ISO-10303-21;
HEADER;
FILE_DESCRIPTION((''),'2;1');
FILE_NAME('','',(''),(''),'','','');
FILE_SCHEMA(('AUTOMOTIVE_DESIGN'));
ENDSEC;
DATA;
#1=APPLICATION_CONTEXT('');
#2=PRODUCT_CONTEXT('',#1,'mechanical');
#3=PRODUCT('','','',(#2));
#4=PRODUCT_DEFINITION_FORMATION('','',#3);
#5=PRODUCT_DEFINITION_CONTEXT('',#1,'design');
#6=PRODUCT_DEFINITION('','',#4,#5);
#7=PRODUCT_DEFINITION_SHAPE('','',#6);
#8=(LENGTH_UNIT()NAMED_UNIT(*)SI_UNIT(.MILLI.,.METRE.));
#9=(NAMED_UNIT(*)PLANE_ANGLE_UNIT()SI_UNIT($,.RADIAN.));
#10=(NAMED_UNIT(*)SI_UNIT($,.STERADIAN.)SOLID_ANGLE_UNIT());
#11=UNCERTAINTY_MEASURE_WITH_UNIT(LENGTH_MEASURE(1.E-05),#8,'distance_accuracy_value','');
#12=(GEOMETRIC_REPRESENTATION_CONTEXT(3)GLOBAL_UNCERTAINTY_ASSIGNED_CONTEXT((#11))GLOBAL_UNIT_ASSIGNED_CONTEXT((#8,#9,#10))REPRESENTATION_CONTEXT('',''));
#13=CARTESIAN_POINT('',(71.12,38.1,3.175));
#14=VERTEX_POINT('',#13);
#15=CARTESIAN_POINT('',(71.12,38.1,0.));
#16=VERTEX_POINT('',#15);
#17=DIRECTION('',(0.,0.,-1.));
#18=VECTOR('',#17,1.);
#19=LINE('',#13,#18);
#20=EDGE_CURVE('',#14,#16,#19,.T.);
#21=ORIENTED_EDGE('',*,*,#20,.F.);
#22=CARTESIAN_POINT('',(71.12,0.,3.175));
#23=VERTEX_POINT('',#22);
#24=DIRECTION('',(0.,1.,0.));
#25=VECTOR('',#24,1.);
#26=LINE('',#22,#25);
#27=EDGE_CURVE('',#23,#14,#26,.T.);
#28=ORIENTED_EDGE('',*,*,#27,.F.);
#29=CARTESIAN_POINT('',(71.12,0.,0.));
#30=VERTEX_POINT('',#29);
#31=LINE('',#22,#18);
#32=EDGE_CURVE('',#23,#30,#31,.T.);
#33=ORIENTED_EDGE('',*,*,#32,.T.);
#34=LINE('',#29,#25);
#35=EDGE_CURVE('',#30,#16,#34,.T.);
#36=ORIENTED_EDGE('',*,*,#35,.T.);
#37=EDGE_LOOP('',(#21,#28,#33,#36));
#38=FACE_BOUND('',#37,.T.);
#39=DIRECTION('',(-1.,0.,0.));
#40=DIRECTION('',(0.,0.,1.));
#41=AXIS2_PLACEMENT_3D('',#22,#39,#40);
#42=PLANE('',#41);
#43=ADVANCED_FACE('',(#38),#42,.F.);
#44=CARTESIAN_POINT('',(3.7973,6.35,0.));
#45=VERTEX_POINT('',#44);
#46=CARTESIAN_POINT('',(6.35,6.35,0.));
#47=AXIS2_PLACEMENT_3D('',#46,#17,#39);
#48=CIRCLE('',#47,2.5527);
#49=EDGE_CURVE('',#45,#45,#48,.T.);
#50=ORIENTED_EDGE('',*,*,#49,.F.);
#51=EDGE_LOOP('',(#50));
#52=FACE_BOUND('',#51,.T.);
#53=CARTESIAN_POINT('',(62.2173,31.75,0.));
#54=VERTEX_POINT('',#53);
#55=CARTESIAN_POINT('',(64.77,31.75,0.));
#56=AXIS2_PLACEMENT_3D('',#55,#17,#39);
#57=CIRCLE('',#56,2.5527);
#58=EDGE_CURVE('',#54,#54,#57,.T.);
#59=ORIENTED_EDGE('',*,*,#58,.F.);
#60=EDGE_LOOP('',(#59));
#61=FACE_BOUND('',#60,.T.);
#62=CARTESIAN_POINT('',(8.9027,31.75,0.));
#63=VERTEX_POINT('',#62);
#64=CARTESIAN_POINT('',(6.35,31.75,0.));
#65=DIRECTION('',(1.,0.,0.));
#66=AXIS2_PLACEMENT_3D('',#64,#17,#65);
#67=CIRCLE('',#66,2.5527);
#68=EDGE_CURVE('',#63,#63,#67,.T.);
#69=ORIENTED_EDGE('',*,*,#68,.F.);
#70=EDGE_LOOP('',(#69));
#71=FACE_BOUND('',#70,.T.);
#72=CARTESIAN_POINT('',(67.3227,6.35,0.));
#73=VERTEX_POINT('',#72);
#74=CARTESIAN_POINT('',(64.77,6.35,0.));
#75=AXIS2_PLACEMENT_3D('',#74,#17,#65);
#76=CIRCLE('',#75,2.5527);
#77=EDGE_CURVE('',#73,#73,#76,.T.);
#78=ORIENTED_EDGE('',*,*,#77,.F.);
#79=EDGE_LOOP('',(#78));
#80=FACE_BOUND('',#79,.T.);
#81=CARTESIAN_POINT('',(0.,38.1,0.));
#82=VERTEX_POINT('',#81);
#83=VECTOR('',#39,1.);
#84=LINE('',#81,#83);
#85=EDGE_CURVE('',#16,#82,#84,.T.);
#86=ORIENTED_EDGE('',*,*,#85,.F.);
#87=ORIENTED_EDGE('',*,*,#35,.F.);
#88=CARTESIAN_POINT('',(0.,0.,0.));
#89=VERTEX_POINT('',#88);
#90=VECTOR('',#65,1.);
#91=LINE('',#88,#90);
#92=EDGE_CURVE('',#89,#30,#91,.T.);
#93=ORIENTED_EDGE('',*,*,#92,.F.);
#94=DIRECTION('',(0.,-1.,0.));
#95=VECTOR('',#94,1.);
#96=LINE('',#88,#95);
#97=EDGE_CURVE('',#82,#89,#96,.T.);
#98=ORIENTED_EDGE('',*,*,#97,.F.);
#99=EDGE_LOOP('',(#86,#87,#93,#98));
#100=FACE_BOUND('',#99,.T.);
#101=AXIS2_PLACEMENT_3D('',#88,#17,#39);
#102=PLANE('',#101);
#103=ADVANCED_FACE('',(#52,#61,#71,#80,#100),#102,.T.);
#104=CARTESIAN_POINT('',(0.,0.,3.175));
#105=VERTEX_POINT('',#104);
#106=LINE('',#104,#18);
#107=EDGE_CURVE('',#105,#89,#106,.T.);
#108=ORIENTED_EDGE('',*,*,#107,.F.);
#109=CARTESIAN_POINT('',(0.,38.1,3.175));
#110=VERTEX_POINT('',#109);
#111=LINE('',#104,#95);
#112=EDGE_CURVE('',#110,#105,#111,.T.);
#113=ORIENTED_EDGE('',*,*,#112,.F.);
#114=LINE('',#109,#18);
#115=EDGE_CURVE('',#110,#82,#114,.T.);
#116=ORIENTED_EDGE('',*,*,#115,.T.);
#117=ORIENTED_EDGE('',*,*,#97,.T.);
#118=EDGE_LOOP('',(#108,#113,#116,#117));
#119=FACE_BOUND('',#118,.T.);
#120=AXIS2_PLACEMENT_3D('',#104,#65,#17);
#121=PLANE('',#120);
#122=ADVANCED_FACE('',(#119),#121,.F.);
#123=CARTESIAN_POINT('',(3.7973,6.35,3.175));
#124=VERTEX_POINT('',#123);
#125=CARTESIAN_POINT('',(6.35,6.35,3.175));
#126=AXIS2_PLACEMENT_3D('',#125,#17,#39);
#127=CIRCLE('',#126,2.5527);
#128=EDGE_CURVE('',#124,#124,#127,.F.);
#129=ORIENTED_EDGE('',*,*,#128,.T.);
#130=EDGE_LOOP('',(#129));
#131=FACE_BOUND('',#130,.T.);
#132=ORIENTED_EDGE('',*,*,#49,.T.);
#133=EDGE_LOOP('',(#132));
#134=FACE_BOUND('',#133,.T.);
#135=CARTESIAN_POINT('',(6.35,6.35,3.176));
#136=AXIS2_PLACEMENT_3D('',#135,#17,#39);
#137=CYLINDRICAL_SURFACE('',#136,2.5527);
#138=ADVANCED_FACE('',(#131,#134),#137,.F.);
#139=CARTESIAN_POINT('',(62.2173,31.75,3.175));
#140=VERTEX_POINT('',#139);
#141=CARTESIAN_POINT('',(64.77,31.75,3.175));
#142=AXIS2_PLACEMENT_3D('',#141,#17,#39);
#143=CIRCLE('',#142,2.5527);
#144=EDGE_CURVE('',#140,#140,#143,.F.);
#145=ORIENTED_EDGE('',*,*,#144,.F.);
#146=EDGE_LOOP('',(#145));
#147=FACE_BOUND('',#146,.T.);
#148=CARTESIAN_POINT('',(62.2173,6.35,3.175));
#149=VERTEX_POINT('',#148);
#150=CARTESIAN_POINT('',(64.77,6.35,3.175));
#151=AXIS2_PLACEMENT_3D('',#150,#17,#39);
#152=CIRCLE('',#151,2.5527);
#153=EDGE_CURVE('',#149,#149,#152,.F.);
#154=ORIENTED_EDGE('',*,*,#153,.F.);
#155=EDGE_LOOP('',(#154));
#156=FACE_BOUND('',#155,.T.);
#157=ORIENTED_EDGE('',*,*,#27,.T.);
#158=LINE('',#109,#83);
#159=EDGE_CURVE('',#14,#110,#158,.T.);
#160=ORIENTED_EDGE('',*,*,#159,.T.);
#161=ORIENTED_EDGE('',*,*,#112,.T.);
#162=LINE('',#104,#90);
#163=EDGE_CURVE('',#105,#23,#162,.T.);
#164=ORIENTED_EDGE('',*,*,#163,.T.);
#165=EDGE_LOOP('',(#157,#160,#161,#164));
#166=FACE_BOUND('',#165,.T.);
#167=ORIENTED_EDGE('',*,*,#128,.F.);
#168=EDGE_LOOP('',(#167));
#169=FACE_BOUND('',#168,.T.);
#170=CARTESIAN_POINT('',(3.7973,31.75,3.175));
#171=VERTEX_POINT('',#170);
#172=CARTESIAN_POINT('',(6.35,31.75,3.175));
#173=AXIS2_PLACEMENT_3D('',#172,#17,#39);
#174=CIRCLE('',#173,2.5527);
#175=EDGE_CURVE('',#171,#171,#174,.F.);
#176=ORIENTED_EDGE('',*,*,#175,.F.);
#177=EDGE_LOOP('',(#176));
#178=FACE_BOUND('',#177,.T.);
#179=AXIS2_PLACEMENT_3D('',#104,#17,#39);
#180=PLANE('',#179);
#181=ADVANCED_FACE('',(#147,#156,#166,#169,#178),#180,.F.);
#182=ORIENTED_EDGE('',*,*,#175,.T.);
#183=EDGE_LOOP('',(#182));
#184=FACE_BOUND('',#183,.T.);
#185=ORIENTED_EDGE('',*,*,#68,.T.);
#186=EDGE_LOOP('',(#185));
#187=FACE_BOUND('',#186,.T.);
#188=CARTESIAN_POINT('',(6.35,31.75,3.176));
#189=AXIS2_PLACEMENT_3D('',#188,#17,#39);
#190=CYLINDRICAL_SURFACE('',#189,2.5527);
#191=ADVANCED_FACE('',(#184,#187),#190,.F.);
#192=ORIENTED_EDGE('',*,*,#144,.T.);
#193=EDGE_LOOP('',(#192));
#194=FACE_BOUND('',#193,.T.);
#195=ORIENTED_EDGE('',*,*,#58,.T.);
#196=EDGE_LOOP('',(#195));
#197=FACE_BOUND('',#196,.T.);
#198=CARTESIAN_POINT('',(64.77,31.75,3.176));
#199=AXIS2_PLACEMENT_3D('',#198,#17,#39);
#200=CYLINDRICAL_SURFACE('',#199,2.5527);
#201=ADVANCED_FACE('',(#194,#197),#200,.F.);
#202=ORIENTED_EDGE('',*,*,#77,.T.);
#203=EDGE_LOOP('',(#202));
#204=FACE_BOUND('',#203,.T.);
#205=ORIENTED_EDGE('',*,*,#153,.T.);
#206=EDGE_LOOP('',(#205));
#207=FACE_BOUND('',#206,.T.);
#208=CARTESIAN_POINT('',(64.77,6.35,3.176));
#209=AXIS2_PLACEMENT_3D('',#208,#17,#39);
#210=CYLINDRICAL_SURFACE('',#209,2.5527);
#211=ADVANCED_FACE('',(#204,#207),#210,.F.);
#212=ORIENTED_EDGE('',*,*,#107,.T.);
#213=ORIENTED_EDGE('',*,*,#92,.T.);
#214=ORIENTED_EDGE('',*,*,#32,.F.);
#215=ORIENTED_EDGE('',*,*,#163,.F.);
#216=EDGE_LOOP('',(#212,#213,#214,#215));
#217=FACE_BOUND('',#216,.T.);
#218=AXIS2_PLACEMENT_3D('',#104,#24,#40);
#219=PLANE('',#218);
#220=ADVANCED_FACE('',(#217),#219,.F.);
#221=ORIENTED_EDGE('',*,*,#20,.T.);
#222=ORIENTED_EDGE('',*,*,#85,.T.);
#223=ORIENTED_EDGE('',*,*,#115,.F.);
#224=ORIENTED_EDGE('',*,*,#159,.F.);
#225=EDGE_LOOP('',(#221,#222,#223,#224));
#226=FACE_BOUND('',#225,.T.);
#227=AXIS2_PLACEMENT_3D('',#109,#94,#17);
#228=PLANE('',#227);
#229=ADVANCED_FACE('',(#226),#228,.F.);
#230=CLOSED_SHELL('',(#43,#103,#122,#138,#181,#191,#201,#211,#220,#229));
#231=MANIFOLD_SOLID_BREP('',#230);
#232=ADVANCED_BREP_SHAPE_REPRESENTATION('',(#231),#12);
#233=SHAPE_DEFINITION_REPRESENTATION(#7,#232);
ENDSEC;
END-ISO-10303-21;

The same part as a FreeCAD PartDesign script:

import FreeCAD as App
import Part
import Sketcher
from FreeCAD import Vector
Q = App.Units.Quantity


def add_polygon(sketch, points):
    """Adds a closed chain of lines whose ends are joined by coincident constraints."""
    first, n = sketch.GeometryCount, len(points)
    for a, b in zip(points, points[1:] + points[:1]):
        sketch.addGeometry(Part.LineSegment(App.Vector(*a, 0), App.Vector(*b, 0)), False)
    for i in range(n):
        sketch.addConstraint(Sketcher.Constraint("Coincident", first + i, 2, first + (i + 1) % n, 1))

doc = App.newDocument("Part")
body = doc.addObject("PartDesign::Body", "Body")

# Sketch on XY plane
sketch1 = body.newObject("Sketcher::SketchObject", "Sketch")
sketch1.AttachmentSupport = (doc.getObject("XY_Plane"), [""])
sketch1.MapMode = "FlatFace"
add_polygon(sketch1, [(0, 38), (0, 0), (71, 0), (71, 38)])  # lines 0-3
sketch1.addConstraint([
    Sketcher.Constraint("Vertical", 0),
    Sketcher.Constraint("Horizontal", 1),
    Sketcher.Constraint("Vertical", 2),
    Sketcher.Constraint("Horizontal", 3),
    Sketcher.Constraint("Coincident", 0, 2, -1, 1),
    Sketcher.Constraint("DistanceX", 1, 1, 1, 2, Q("2.8 in")),
    Sketcher.Constraint("DistanceY", 0, 2, 0, 1, Q("1.5 in")),
])
pad1 = body.newObject("PartDesign::Pad", "Pad")
pad1.Profile = sketch1
pad1.Length = Q("0.125 in")

# Sketch on XY plane
sketch2 = body.newObject("Sketcher::SketchObject", "Sketch001")
sketch2.AttachmentSupport = (doc.getObject("XY_Plane"), [""])
sketch2.MapMode = "FlatFace"
sketch2.addGeometry(Part.Circle(Vector(6.3, 6.3, 0), Vector(0, 0, 1), 2.6), False)
sketch2.addConstraint([
    Sketcher.Constraint("Diameter", 0, Q("0.201 in")),
    Sketcher.Constraint("DistanceX", -1, 1, 0, 3, Q("0.25 in")),
    Sketcher.Constraint("DistanceY", -1, 1, 0, 3, Q("0.25 in")),
])
pocket1 = body.newObject("PartDesign::Pocket", "Pocket")
pocket1.Profile = sketch2
pocket1.Type = "UpToFirst"
pocket1.Reversed = True

# Sketch on XY plane
sketch3 = body.newObject("Sketcher::SketchObject", "Sketch002")
sketch3.AttachmentSupport = (doc.getObject("XY_Plane"), [""])
sketch3.MapMode = "FlatFace"
sketch3.addGeometry(Part.Circle(Vector(64.8, 6.3, 0), Vector(0, 0, 1), 2.6), False)
sketch3.addConstraint([
    Sketcher.Constraint("Diameter", 0, Q("0.201 in")),
    Sketcher.Constraint("DistanceX", -1, 1, 0, 3, Q("2.55 in")),
    Sketcher.Constraint("DistanceY", -1, 1, 0, 3, Q("0.25 in")),
])
pocket2 = body.newObject("PartDesign::Pocket", "Pocket001")
pocket2.Profile = sketch3
pocket2.Type = "UpToFirst"
pocket2.Reversed = True

# Sketch on XY plane
sketch4 = body.newObject("Sketcher::SketchObject", "Sketch003")
sketch4.AttachmentSupport = (doc.getObject("XY_Plane"), [""])
sketch4.MapMode = "FlatFace"
sketch4.addGeometry(Part.Circle(Vector(64.8, 31.8, 0), Vector(0, 0, 1), 2.6), False)
sketch4.addConstraint([
    Sketcher.Constraint("Diameter", 0, Q("0.201 in")),
    Sketcher.Constraint("DistanceX", -1, 1, 0, 3, Q("2.55 in")),
    Sketcher.Constraint("DistanceY", -1, 1, 0, 3, Q("1.25 in")),
])
pocket3 = body.newObject("PartDesign::Pocket", "Pocket002")
pocket3.Profile = sketch4
pocket3.Type = "UpToFirst"
pocket3.Reversed = True

# Sketch on XY plane
sketch5 = body.newObject("Sketcher::SketchObject", "Sketch004")
sketch5.AttachmentSupport = (doc.getObject("XY_Plane"), [""])
sketch5.MapMode = "FlatFace"
sketch5.addGeometry(Part.Circle(Vector(6.3, 31.8, 0), Vector(0, 0, 1), 2.6), False)
sketch5.addConstraint([
    Sketcher.Constraint("Diameter", 0, Q("0.201 in")),
    Sketcher.Constraint("DistanceX", -1, 1, 0, 3, Q("0.25 in")),
    Sketcher.Constraint("DistanceY", -1, 1, 0, 3, Q("1.25 in")),
])
pocket4 = body.newObject("PartDesign::Pocket", "Pocket003")
pocket4.Profile = sketch5
pocket4.Type = "UpToFirst"
pocket4.Reversed = True

doc.recompute()
